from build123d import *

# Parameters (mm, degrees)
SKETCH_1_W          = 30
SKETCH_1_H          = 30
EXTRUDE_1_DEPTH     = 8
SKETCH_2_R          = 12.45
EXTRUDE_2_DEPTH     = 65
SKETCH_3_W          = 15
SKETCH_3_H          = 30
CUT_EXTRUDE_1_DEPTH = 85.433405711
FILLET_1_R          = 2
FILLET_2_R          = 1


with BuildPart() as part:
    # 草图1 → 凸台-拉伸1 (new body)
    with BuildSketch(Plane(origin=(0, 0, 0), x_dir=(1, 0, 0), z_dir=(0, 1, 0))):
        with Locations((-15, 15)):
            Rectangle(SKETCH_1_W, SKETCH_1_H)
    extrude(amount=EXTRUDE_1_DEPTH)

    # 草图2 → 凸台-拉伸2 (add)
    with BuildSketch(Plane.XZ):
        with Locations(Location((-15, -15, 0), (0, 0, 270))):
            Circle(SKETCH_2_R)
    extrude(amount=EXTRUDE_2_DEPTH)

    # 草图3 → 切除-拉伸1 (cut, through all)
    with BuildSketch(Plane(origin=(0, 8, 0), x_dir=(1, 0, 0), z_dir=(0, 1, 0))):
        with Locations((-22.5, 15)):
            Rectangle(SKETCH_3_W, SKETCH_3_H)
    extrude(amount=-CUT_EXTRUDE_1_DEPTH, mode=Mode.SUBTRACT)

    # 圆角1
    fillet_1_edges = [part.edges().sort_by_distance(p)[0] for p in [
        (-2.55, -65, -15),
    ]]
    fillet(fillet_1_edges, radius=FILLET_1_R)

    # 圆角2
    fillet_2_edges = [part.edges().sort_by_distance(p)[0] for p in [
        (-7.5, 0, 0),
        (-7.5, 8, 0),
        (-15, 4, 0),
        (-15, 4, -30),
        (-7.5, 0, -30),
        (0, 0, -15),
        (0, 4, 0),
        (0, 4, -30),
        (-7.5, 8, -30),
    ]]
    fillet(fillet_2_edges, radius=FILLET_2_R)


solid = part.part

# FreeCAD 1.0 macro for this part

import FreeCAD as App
import Part
import Sketcher
from FreeCAD import Vector
Q = App.Units.Quantity


def edges_at(feature, points):
    """Names of the edges that pass closest to the given points."""
    edges = feature.Shape.Edges
    near = lambda p: min(range(len(edges)), key=lambda i: edges[i].distToShape(Part.Vertex(*p))[0])
    return sorted({f"Edge{near(p) + 1}" for p in points})


def add_polygon(sketch, points):
    """Adds a closed chain of lines whose ends are joined by coincident constraints."""
    first, n = sketch.GeometryCount, len(points)
    for a, b in zip(points, points[1:] + points[:1]):
        sketch.addGeometry(Part.LineSegment(App.Vector(*a, 0), App.Vector(*b, 0)), False)
    for i in range(n):
        sketch.addConstraint(Sketcher.Constraint("Coincident", first + i, 2, first + (i + 1) % n, 1))

doc = App.newDocument("Part")
body = doc.addObject("PartDesign::Body", "Body")

sketch1 = doc.addObject("Sketcher::SketchObject", "Sketch")
body.addObject(sketch1)
sketch1.AttachmentSupport = (doc.XZ_Plane, [""])
sketch1.MapMode = "FlatFace"
add_polygon(sketch1, [(-30, -30), (-30, 0), (0, 0), (0, -30)])
sketch1.addConstraint(Sketcher.Constraint("Vertical", 0))
sketch1.addConstraint(Sketcher.Constraint("Horizontal", 1))
sketch1.addConstraint(Sketcher.Constraint("Vertical", 2))
sketch1.addConstraint(Sketcher.Constraint("Horizontal", 3))
sketch1.addConstraint(Sketcher.Constraint("Coincident", 1, 2, -1, 1))
sketch1.addConstraint(Sketcher.Constraint("Equal", 3, 0))
sketch1.addConstraint(Sketcher.Constraint("DistanceX", 1, 1, 1, 2, Q("30 mm")))
pad1 = doc.addObject("PartDesign::Pad", "Pad")
body.addObject(pad1)
pad1.Profile = sketch1
pad1.Length = 8
pad1.Reversed = True

sketch2 = doc.addObject("Sketcher::SketchObject", "Sketch001")
body.addObject(sketch2)
sketch2.AttachmentSupport = (doc.XZ_Plane, [""])
sketch2.MapMode = "FlatFace"
sketch2.addGeometry(Part.Circle(Vector(-15, -15, 0), Vector(0, 0, 1), 12), False)
sketch2.addConstraint(Sketcher.Constraint("Diameter", 0, Q("24.9 mm")))
sketch2.addConstraint(Sketcher.Constraint("DistanceX", 0, 3, -1, 1, Q("15 mm")))
sketch2.addConstraint(Sketcher.Constraint("DistanceY", 0, 3, -1, 1, Q("15 mm")))
pad2 = doc.addObject("PartDesign::Pad", "Pad001")
body.addObject(pad2)
pad2.Profile = sketch2
pad2.Length = 65

sketch3 = doc.addObject("Sketcher::SketchObject", "Sketch002")
body.addObject(sketch3)
sketch3.AttachmentSupport = (doc.XZ_Plane, [""])
sketch3.MapMode = "FlatFace"
sketch3.AttachmentOffset = App.Placement(Vector(0, 0, -8), App.Rotation())
add_polygon(sketch3, [(-30, -30), (-30, 0), (-15, 0), (-15, -30)])
sketch3.addConstraint(Sketcher.Constraint("Vertical", 0))
sketch3.addConstraint(Sketcher.Constraint("Horizontal", 1))
sketch3.addConstraint(Sketcher.Constraint("Vertical", 2))
sketch3.addConstraint(Sketcher.Constraint("Horizontal", 3))
sketch3.addConstraint(Sketcher.Constraint("PointOnObject", 0, 2, -1))
sketch3.addConstraint(Sketcher.Constraint("DistanceX", 1, 1, 1, 2, Q("15 mm")))
sketch3.addConstraint(Sketcher.Constraint("DistanceY", 0, 1, 0, 2, Q("30 mm")))
sketch3.addConstraint(Sketcher.Constraint("DistanceX", 0, 2, -1, 1, Q("30 mm")))
pocket1 = doc.addObject("PartDesign::Pocket", "Pocket")
body.addObject(pocket1)
pocket1.Profile = sketch3
pocket1.Type = "ThroughAll"
pocket1.Reversed = True
doc.recompute()

fillet = doc.addObject("PartDesign::Fillet", "Fillet")
body.addObject(fillet)
fillet.Base = (pocket1, edges_at(pocket1, [(-2.55, -65, -15)]))
fillet.Radius = 2
doc.recompute()

fillet2 = doc.addObject("PartDesign::Fillet", "Fillet001")
body.addObject(fillet2)
fillet2.Base = (fillet, edges_at(fillet, [
    (-7.5, 0, 0),
    (-7.5, 8, 0),
    (-15, 4, 0),
    (-15, 4, -30),
    (-7.5, 0, -30),
    (0, 0, -15),
    (0, 4, 0),
    (0, 4, -30),
    (-7.5, 8, -30),
]))
fillet2.Radius = 1

doc.recompute()
